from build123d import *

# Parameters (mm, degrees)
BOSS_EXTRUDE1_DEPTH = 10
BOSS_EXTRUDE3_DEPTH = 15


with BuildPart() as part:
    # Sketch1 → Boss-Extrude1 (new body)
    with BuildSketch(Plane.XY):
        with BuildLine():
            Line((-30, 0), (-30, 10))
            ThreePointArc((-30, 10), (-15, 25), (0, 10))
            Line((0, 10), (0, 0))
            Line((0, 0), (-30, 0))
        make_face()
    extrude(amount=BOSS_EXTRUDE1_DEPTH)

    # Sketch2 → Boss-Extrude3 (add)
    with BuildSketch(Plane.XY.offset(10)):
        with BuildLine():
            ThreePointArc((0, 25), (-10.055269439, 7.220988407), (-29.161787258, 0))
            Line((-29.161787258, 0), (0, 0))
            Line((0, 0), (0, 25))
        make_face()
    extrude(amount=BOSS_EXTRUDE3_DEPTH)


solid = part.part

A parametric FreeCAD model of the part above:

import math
import FreeCAD as App
import Part
import Sketcher

V = App.Vector
Q = App.Units.Quantity

doc = App.newDocument("Part")
body = doc.addObject("PartDesign::Body", "Body")

# Sketch on XY plane
sketch1 = doc.addObject("Sketcher::SketchObject", "Sketch")
body.addObject(sketch1)
sketch1.AttachmentSupport = (doc.XY_Plane, [""])
sketch1.MapMode = "FlatFace"
sketch1.addGeometry([
    Part.LineSegment(V(-30, 10, 0), V(-30, 0, 0)),
    Part.LineSegment(V(-30, 0, 0), V(0, 0, 0)),
    Part.LineSegment(V(0, 0, 0), V(0, 10, 0)),
    Part.ArcOfCircle(Part.Circle(V(-15, 10, 0), V(0, 0, 1), 15), math.radians(0), math.radians(180)),
], False)
sketch1.addConstraint([
    Sketcher.Constraint("Coincident", 0, 2, 1, 1),
    Sketcher.Constraint("Coincident", 1, 2, 2, 1),
    Sketcher.Constraint("Tangent", 2, 2, 3, 1),
    Sketcher.Constraint("Tangent", 3, 2, 0, 1),
    Sketcher.Constraint("Vertical", 0),
    Sketcher.Constraint("Horizontal", 1),
    Sketcher.Constraint("Vertical", 2),
    Sketcher.Constraint("Coincident", 1, 2, -1, 1),
    Sketcher.Constraint("Radius", 3, Q("15 mm")),
    Sketcher.Constraint("DistanceY", 0, 2, 0, 1, Q("10 mm")),
])
pad1 = doc.addObject("PartDesign::Pad", "Pad")
body.addObject(pad1)
pad1.Profile = sketch1
pad1.Length = 10

# Sketch on XY plane
sketch2 = doc.addObject("Sketcher::SketchObject", "Sketch001")
body.addObject(sketch2)
sketch2.AttachmentSupport = (doc.XY_Plane, [""])
sketch2.MapMode = "FlatFace"
sketch2.AttachmentOffset = App.Placement(V(0, 0, 10), App.Rotation())
sketch2.addGeometry([
    Part.ArcOfCircle(Part.Circle(V(-30, 30, 0), V(0, 0, 1), 30), math.radians(-89), math.radians(-10)),
    Part.LineSegment(V(-29, 0, 0), V(0, 0, 0)),
    Part.LineSegment(V(0, 0, 0), V(0, 25, 0)),
], False)
sketch2.addConstraint([
    Sketcher.Constraint("Coincident", 0, 1, 1, 1),
    Sketcher.Constraint("Coincident", 1, 2, 2, 1),
    Sketcher.Constraint("Coincident", 2, 2, 0, 2),
    Sketcher.Constraint("Horizontal", 1),
    Sketcher.Constraint("Vertical", 2),
    Sketcher.Constraint("Coincident", 1, 2, -1, 1),
    Sketcher.Constraint("Radius", 0, Q("30 mm")),
    Sketcher.Constraint("DistanceY", 2, 1, 2, 2, Q("25 mm")),
    Sketcher.Constraint("DistanceX", 1, 1, 1, 2, Q("29.161787 mm")),
])
pad2 = doc.addObject("PartDesign::Pad", "Pad001")
body.addObject(pad2)
pad2.Profile = sketch2
pad2.Length = 15

doc.recompute()
